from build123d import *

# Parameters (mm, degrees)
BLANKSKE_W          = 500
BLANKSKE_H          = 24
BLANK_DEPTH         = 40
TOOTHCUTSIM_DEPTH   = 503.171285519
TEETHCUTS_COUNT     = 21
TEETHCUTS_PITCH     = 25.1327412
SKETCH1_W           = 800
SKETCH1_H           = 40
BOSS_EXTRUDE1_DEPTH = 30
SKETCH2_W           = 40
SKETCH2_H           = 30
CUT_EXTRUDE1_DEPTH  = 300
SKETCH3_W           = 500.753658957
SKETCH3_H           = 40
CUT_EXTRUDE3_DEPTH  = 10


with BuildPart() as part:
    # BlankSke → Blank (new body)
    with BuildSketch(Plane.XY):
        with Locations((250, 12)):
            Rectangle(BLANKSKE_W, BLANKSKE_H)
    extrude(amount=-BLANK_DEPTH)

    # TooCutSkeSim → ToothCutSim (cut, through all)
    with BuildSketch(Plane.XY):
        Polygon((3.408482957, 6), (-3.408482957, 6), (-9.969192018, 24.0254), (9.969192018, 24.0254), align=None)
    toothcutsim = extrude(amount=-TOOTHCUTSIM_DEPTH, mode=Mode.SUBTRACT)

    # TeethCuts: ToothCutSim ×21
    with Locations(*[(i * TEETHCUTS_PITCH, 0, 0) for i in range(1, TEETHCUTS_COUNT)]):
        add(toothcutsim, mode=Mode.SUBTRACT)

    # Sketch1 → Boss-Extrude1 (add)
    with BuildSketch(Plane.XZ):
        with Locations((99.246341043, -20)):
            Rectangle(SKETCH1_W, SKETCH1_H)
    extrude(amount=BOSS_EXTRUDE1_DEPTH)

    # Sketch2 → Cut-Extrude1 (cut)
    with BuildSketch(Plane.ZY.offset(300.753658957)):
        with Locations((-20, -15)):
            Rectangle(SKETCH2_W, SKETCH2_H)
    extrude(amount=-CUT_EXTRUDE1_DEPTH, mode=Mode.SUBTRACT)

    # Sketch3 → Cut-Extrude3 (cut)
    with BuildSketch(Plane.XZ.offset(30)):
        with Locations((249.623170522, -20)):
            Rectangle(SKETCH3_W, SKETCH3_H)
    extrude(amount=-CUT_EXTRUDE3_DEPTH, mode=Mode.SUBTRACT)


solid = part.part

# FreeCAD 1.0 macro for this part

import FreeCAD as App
import Part
import Sketcher
from FreeCAD import Vector
Q = App.Units.Quantity

doc = App.newDocument("Part")
body = doc.addObject("PartDesign::Body", "Body")

# Sketch on XY plane
sketch1 = doc.addObject("Sketcher::SketchObject", "Sketch")
body.addObject(sketch1)
sketch1.AttachmentSupport = (doc.XY_Plane, [""])
sketch1.MapMode = "FlatFace"
sketch1.addGeometry([
    Part.LineSegment(Vector(0, 24, 0), Vector(0, 0, 0)),
    Part.LineSegment(Vector(0, 0, 0), Vector(500, 0, 0)),
    Part.LineSegment(Vector(500, 0, 0), Vector(500, 24, 0)),
    Part.LineSegment(Vector(500, 24, 0), Vector(0, 24, 0)),
], False)
sketch1.addConstraint([
    Sketcher.Constraint("Coincident", 0, 2, 1, 1),
    Sketcher.Constraint("Coincident", 1, 2, 2, 1),
    Sketcher.Constraint("Coincident", 2, 2, 3, 1),
    Sketcher.Constraint("Coincident", 3, 2, 0, 1),
    Sketcher.Constraint("Vertical", 0),
    Sketcher.Constraint("Horizontal", 1),
    Sketcher.Constraint("Vertical", 2),
    Sketcher.Constraint("Horizontal", 3),
    Sketcher.Constraint("Coincident", 0, 2, -1, 1),
    Sketcher.Constraint("DistanceX", 1, 1, 1, 2, 500.0),
    Sketcher.Constraint("DistanceY", 0, 2, 0, 1, 24.0),
])
pad1 = doc.addObject("PartDesign::Pad", "Pad")
body.addObject(pad1)
pad1.Profile = sketch1
pad1.Length = 40
pad1.Reversed = True

# Sketch on XY plane
sketch2 = doc.addObject("Sketcher::SketchObject", "Sketch001")
body.addObject(sketch2)
sketch2.AttachmentSupport = (doc.XY_Plane, [""])
sketch2.MapMode = "FlatFace"
sketch2.addGeometry([
    Part.LineSegment(Vector(-3.408483, 6, 0), Vector(3.408483, 6, 0)),
    Part.LineSegment(Vector(3.408483, 6, 0), Vector(9.969192, 24.0254, 0)),
    Part.LineSegment(Vector(9.969192, 24.0254, 0), Vector(-9.969192, 24.0254, 0)),
    Part.LineSegment(Vector(-9.969192, 24.0254, 0), Vector(-3.408483, 6, 0)),
], False)
sketch2.addConstraint([
    Sketcher.Constraint("Coincident", 0, 2, 1, 1),
    Sketcher.Constraint("Coincident", 1, 2, 2, 1),
    Sketcher.Constraint("Coincident", 2, 2, 3, 1),
    Sketcher.Constraint("Coincident", 3, 2, 0, 1),
    Sketcher.Constraint("Horizontal", 0),
    Sketcher.Constraint("Horizontal", 2),
    Sketcher.Constraint("Equal", 1, 3),
    Sketcher.Constraint("Angle", 1, Q("70 deg")),
    Sketcher.Constraint("DistanceY", -1, 1, 0, 2, 6.0),
    Sketcher.Constraint("DistanceY", -1, 1, 1, 2, 24.0254),
    Sketcher.Constraint("DistanceX", 0, 1, 0, 2, 6.816966),
    Sketcher.Constraint("DistanceX", -1, 1, 0, 2, 3.408483),
])
pocket1 = doc.addObject("PartDesign::Pocket", "Pocket")
body.addObject(pocket1)
pocket1.Profile = sketch2
pocket1.Type = "ThroughAll"
doc.recompute()

linearpattern = doc.addObject("PartDesign::LinearPattern", "LinearPattern")
body.addObject(linearpattern)
linearpattern.Originals = [pocket1]
linearpattern.Direction = (doc.X_Axis, [""])
linearpattern.Mode = "offset"
linearpattern.Offset = 25.132741
linearpattern.Occurrences = 21
body.Tip = linearpattern

# Sketch on XZ plane
sketch3 = doc.addObject("Sketcher::SketchObject", "Sketch002")
body.addObject(sketch3)
sketch3.AttachmentSupport = (doc.XZ_Plane, [""])
sketch3.MapMode = "FlatFace"
sketch3.addGeometry([
    Part.LineSegment(Vector(-300.753659, 0, 0), Vector(-300.753659, -40, 0)),
    Part.LineSegment(Vector(-300.753659, -40, 0), Vector(499.246341, -40, 0)),
    Part.LineSegment(Vector(499.246341, -40, 0), Vector(499.246341, 0, 0)),
    Part.LineSegment(Vector(499.246341, 0, 0), Vector(-300.753659, 0, 0)),
], False)
sketch3.addConstraint([
    Sketcher.Constraint("Coincident", 0, 2, 1, 1),
    Sketcher.Constraint("Coincident", 1, 2, 2, 1),
    Sketcher.Constraint("Coincident", 2, 2, 3, 1),
    Sketcher.Constraint("Coincident", 3, 2, 0, 1),
    Sketcher.Constraint("Vertical", 0),
    Sketcher.Constraint("Horizontal", 1),
    Sketcher.Constraint("Vertical", 2),
    Sketcher.Constraint("Horizontal", 3),
    Sketcher.Constraint("PointOnObject", 2, 2, -1),
    Sketcher.Constraint("DistanceX", 1, 1, 1, 2, 800.0),
    Sketcher.Constraint("DistanceY", 0, 2, 0, 1, 40.0),
    Sketcher.Constraint("DistanceX", 0, 2, -1, 1, 300.753659),
])
pad2 = doc.addObject("PartDesign::Pad", "Pad001")
body.addObject(pad2)
pad2.Profile = sketch3
pad2.Length = 30

# Sketch on YZ plane
sketch4 = doc.addObject("Sketcher::SketchObject", "Sketch003")
body.addObject(sketch4)
sketch4.AttachmentSupport = (doc.YZ_Plane, [""])
sketch4.MapMode = "FlatFace"
sketch4.AttachmentOffset = App.Placement(Vector(0, 0, -300.753659), App.Rotation())
sketch4.addGeometry([
    Part.LineSegment(Vector(0, -40, 0), Vector(-30, -40, 0)),
    Part.LineSegment(Vector(-30, -40, 0), Vector(-30, 0, 0)),
    Part.LineSegment(Vector(-30, 0, 0), Vector(0, 0, 0)),
    Part.LineSegment(Vector(0, 0, 0), Vector(0, -40, 0)),
], False)
sketch4.addConstraint([
    Sketcher.Constraint("Coincident", 0, 2, 1, 1),
    Sketcher.Constraint("Coincident", 1, 2, 2, 1),
    Sketcher.Constraint("Coincident", 2, 2, 3, 1),
    Sketcher.Constraint("Coincident", 3, 2, 0, 1),
    Sketcher.Constraint("Horizontal", 0),
    Sketcher.Constraint("Vertical", 1),
    Sketcher.Constraint("Horizontal", 2),
    Sketcher.Constraint("Vertical", 3),
    Sketcher.Constraint("Coincident", 2, 2, -1, 1),
    Sketcher.Constraint("DistanceX", 0, 2, 0, 1, 30.0),
    Sketcher.Constraint("DistanceY", 1, 1, 1, 2, 40.0),
])
pocket2 = doc.addObject("PartDesign::Pocket", "Pocket001")
body.addObject(pocket2)
pocket2.Profile = sketch4
pocket2.Length = 300
pocket2.Reversed = True

# Sketch on XZ plane
sketch5 = doc.addObject("Sketcher::SketchObject", "Sketch004")
body.addObject(sketch5)
sketch5.AttachmentSupport = (doc.XZ_Plane, [""])
sketch5.MapMode = "FlatFace"
sketch5.AttachmentOffset = App.Placement(Vector(0, 0, 30), App.Rotation())
sketch5.addGeometry([
    Part.LineSegment(Vector(-0.753659, 0, 0), Vector(-0.753659, -40, 0)),
    Part.LineSegment(Vector(-0.753659, -40, 0), Vector(500, -40, 0)),
    Part.LineSegment(Vector(500, -40, 0), Vector(500, 0, 0)),
    Part.LineSegment(Vector(500, 0, 0), Vector(-0.753659, 0, 0)),
], False)
sketch5.addConstraint([
    Sketcher.Constraint("Coincident", 0, 2, 1, 1),
    Sketcher.Constraint("Coincident", 1, 2, 2, 1),
    Sketcher.Constraint("Coincident", 2, 2, 3, 1),
    Sketcher.Constraint("Coincident", 3, 2, 0, 1),
    Sketcher.Constraint("Vertical", 0),
    Sketcher.Constraint("Horizontal", 1),
    Sketcher.Constraint("Vertical", 2),
    Sketcher.Constraint("Horizontal", 3),
    Sketcher.Constraint("PointOnObject", 2, 2, -1),
    Sketcher.Constraint("DistanceY", 0, 2, 0, 1, 40.0),
    Sketcher.Constraint("DistanceX", -1, 1, 1, 2, 500.0),
    Sketcher.Constraint("DistanceX", 1, 1, 1, 2, 500.753659),
])
pocket3 = doc.addObject("PartDesign::Pocket", "Pocket002")
body.addObject(pocket3)
pocket3.Profile = sketch5
pocket3.Length = 10

doc.recompute()
